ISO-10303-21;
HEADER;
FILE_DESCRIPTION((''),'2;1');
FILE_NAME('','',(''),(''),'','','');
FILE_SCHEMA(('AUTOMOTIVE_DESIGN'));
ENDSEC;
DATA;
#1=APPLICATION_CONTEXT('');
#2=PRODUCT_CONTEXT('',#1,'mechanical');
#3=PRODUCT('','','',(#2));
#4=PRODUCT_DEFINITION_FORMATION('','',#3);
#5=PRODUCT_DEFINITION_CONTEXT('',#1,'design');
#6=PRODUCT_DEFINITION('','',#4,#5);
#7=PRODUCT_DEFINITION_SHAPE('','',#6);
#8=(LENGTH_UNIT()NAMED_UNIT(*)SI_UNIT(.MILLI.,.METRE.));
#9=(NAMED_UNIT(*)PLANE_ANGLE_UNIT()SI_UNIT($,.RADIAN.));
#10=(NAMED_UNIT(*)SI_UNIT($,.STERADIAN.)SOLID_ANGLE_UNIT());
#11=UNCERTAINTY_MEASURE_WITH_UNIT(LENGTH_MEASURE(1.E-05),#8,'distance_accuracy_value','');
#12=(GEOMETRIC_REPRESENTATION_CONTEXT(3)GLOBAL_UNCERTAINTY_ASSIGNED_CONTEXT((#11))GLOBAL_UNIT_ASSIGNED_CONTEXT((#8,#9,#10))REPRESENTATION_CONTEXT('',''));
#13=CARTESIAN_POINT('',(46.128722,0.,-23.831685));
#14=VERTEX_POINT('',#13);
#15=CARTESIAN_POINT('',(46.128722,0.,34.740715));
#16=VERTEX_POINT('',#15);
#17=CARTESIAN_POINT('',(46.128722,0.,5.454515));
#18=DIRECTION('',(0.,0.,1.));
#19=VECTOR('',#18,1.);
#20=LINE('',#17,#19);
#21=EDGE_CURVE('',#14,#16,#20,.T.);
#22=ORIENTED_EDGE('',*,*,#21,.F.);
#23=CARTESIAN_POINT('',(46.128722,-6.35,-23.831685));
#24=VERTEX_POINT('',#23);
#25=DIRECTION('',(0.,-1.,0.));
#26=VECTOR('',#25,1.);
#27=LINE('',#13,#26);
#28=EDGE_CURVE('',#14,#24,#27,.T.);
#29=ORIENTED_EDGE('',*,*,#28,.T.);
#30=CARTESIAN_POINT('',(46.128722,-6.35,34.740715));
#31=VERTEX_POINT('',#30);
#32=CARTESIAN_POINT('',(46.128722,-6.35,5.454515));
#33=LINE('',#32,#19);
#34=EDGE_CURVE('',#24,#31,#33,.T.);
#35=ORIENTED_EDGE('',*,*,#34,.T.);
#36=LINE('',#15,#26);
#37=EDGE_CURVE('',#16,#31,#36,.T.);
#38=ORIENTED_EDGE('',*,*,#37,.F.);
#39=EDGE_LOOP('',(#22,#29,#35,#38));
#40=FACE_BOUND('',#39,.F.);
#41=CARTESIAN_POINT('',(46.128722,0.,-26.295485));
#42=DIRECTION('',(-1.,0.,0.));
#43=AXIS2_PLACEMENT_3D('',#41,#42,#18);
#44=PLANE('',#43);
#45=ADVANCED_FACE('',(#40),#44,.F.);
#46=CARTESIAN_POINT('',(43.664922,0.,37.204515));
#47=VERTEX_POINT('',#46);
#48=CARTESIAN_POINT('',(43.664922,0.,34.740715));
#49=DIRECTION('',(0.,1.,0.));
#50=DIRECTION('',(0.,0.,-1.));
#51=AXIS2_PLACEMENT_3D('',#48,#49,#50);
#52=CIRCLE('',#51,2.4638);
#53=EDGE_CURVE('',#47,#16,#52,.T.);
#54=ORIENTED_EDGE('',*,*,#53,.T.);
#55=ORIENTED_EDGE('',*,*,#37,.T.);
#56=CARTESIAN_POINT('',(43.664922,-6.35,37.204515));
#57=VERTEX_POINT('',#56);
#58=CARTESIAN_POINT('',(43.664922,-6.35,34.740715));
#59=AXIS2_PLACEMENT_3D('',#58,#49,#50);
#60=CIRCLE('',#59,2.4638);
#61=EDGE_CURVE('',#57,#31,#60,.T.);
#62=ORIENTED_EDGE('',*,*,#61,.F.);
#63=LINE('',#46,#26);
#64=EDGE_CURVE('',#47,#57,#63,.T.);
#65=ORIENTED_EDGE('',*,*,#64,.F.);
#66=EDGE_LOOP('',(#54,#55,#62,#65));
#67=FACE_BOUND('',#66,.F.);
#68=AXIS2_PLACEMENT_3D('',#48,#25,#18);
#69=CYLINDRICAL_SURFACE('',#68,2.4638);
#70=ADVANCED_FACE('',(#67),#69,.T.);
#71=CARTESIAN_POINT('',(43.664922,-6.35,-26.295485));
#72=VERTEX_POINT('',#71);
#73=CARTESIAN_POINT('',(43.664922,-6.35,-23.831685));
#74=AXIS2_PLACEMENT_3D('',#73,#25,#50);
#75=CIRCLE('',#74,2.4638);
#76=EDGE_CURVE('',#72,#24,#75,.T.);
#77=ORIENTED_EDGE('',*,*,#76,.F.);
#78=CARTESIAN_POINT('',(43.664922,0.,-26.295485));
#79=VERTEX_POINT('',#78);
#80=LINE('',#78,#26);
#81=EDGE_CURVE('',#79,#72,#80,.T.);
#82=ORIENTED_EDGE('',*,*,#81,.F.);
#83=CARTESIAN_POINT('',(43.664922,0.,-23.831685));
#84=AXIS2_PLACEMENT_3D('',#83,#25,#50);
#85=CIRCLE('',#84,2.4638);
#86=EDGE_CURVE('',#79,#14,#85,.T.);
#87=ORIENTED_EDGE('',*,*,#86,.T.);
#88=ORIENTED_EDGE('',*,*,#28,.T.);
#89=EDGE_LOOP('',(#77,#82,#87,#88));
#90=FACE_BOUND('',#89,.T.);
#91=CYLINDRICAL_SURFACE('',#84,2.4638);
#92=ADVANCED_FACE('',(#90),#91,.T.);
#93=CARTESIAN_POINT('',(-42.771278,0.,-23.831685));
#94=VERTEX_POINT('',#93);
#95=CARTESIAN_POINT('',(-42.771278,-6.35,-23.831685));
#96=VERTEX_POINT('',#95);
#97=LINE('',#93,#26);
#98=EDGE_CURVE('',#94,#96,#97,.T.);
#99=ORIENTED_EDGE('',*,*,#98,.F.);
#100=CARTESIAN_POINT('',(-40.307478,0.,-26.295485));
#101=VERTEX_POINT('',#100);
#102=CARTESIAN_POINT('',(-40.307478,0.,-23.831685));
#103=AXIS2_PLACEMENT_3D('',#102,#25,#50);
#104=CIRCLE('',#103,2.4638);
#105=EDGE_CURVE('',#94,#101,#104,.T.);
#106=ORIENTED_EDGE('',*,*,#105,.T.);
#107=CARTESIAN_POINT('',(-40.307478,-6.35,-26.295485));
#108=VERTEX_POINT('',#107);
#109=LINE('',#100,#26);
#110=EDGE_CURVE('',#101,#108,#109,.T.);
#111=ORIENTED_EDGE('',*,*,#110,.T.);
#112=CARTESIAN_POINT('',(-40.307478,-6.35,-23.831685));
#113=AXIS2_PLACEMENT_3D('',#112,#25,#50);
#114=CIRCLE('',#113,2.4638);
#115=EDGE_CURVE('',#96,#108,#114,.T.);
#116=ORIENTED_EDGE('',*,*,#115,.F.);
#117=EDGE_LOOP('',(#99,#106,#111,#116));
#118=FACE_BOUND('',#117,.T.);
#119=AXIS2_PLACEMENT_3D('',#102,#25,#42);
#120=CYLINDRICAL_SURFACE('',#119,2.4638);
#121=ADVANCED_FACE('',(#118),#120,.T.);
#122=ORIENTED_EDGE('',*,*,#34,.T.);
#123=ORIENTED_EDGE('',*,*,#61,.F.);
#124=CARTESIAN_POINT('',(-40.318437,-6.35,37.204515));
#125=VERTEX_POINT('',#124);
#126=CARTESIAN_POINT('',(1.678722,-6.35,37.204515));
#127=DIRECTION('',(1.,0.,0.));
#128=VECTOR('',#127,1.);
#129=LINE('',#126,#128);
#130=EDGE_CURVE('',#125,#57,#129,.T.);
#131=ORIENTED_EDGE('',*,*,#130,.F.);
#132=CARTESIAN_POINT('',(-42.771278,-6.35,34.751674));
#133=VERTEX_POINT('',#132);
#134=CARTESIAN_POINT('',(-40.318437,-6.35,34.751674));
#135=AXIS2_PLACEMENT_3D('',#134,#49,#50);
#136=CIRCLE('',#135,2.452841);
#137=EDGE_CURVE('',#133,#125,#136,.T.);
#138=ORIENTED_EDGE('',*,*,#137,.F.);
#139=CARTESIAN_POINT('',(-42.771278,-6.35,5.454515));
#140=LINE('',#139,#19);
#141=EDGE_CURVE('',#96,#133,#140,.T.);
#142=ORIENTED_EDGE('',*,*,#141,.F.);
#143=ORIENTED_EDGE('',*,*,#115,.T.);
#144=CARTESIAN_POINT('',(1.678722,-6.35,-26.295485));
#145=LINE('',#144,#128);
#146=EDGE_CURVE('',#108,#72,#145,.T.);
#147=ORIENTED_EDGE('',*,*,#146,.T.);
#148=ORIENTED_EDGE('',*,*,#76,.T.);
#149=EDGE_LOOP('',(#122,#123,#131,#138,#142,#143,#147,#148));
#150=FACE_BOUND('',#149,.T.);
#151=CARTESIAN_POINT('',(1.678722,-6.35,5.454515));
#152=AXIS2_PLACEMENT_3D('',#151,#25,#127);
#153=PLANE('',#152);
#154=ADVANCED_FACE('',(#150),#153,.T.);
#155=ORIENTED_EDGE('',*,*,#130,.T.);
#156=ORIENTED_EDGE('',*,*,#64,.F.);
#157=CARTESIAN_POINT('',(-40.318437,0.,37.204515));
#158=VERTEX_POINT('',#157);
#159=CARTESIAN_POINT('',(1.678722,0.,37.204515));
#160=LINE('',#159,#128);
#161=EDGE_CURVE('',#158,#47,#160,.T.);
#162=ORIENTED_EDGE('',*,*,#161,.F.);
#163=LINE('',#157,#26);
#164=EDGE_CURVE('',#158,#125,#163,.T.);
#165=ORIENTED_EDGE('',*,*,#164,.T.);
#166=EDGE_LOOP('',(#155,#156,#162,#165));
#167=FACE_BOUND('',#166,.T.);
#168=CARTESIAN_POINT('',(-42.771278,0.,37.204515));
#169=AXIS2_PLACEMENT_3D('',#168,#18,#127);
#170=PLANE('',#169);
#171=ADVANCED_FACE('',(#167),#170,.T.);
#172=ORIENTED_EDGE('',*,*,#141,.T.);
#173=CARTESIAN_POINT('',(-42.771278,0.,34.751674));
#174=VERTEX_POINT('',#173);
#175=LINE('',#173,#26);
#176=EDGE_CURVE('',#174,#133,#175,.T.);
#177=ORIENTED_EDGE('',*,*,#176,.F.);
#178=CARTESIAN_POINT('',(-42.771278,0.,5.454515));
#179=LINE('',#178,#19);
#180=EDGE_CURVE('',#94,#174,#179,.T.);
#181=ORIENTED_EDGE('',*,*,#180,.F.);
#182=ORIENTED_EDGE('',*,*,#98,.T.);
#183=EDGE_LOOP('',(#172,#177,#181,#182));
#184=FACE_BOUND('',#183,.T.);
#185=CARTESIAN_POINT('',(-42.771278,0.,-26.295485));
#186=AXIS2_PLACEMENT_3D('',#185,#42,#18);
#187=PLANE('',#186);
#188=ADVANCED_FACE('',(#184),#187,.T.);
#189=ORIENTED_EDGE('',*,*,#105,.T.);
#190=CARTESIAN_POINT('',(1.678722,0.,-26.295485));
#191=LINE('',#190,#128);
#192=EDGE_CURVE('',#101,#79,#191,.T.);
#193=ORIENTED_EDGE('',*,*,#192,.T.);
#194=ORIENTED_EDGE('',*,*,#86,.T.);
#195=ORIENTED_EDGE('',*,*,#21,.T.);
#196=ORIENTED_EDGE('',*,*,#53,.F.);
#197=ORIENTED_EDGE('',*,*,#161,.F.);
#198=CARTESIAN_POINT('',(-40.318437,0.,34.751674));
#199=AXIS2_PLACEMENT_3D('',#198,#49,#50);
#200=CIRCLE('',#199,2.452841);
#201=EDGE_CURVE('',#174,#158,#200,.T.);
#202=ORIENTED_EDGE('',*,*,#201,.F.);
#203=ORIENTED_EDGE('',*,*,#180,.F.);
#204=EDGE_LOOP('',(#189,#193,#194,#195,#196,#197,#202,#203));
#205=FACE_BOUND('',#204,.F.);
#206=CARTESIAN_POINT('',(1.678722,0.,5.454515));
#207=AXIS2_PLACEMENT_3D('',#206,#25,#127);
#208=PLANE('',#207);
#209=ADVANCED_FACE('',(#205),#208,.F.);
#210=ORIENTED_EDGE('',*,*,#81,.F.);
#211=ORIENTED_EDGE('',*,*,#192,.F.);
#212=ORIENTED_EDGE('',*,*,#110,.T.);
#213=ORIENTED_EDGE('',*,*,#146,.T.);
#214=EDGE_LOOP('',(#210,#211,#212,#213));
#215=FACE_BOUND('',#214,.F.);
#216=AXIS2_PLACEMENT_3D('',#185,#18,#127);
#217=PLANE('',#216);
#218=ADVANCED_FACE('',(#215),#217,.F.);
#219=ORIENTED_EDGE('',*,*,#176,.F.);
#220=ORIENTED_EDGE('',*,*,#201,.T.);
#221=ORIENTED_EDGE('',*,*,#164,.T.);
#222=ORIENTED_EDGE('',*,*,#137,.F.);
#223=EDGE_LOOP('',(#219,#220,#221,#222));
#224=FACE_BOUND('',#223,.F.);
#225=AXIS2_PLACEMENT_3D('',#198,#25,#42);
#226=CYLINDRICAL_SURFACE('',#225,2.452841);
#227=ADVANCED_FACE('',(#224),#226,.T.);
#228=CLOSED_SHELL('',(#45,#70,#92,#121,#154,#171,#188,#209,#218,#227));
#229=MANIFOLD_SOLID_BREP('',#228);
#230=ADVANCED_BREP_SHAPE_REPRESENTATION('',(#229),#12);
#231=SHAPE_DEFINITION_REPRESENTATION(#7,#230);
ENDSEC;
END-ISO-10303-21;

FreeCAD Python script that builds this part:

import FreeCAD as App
import Part
import Sketcher
from FreeCAD import Vector
Q = App.Units.Quantity


def edges_at(feature, points):
    """Names of the edges that pass closest to the given points."""
    edges = feature.Shape.Edges
    near = lambda p: min(range(len(edges)), key=lambda i: edges[i].distToShape(Part.Vertex(*p))[0])
    return sorted({f"Edge{near(p) + 1}" for p in points})

doc = App.newDocument("Part")
body = doc.addObject("PartDesign::Body", "Body")

# Sketch on XZ plane
sketch1 = body.newObject("Sketcher::SketchObject", "Sketch")
sketch1.AttachmentSupport = (doc.getObject("XZ_Plane"), [""])
sketch1.MapMode = "FlatFace"
sketch1.addGeometry(Part.LineSegment(Vector(-43, 37, 0), Vector(-43, -26, 0)), False)
sketch1.addGeometry(Part.LineSegment(Vector(-43, -26, 0), Vector(46, -26, 0)), False)
sketch1.addGeometry(Part.LineSegment(Vector(46, -26, 0), Vector(46, 37, 0)), False)
sketch1.addGeometry(Part.LineSegment(Vector(46, 37, 0), Vector(-43, 37, 0)), False)
sketch1.addConstraint(Sketcher.Constraint("Coincident", 0, 2, 1, 1))
sketch1.addConstraint(Sketcher.Constraint("Coincident", 1, 2, 2, 1))
sketch1.addConstraint(Sketcher.Constraint("Coincident", 2, 2, 3, 1))
sketch1.addConstraint(Sketcher.Constraint("Coincident", 3, 2, 0, 1))
sketch1.addConstraint(Sketcher.Constraint("Vertical", 0))
sketch1.addConstraint(Sketcher.Constraint("Horizontal", 1))
sketch1.addConstraint(Sketcher.Constraint("Vertical", 2))
sketch1.addConstraint(Sketcher.Constraint("Horizontal", 3))
sketch1.addConstraint(Sketcher.Constraint("DistanceX", 1, 1, 1, 2, Q("3.5 in")))
sketch1.addConstraint(Sketcher.Constraint("DistanceY", 0, 2, 0, 1, Q("2.5 in")))
sketch1.addConstraint(Sketcher.Constraint("DistanceX", 0, 2, -1, 1, 42.771278))
sketch1.addConstraint(Sketcher.Constraint("DistanceY", 0, 2, -1, 1, 26.295485))
pad1 = body.newObject("PartDesign::Pad", "Pad")
pad1.Profile = sketch1
pad1.Length = Q("0.25 in")
doc.recompute()

fillet = body.newObject("PartDesign::Fillet", "Fillet")
fillet.Base = (pad1, edges_at(pad1, [(-42.771, -3.175, 37.205)]))
fillet.Radius = 2.452841
doc.recompute()

fillet2 = body.newObject("PartDesign::Fillet", "Fillet001")
fillet2.Base = (fillet, edges_at(fillet, [(46.129, -3.175, 37.205), (-42.771, -3.175, -26.295), (46.129, -3.175, -26.295)]))
fillet2.Radius = Q("0.097 in")

doc.recompute()
